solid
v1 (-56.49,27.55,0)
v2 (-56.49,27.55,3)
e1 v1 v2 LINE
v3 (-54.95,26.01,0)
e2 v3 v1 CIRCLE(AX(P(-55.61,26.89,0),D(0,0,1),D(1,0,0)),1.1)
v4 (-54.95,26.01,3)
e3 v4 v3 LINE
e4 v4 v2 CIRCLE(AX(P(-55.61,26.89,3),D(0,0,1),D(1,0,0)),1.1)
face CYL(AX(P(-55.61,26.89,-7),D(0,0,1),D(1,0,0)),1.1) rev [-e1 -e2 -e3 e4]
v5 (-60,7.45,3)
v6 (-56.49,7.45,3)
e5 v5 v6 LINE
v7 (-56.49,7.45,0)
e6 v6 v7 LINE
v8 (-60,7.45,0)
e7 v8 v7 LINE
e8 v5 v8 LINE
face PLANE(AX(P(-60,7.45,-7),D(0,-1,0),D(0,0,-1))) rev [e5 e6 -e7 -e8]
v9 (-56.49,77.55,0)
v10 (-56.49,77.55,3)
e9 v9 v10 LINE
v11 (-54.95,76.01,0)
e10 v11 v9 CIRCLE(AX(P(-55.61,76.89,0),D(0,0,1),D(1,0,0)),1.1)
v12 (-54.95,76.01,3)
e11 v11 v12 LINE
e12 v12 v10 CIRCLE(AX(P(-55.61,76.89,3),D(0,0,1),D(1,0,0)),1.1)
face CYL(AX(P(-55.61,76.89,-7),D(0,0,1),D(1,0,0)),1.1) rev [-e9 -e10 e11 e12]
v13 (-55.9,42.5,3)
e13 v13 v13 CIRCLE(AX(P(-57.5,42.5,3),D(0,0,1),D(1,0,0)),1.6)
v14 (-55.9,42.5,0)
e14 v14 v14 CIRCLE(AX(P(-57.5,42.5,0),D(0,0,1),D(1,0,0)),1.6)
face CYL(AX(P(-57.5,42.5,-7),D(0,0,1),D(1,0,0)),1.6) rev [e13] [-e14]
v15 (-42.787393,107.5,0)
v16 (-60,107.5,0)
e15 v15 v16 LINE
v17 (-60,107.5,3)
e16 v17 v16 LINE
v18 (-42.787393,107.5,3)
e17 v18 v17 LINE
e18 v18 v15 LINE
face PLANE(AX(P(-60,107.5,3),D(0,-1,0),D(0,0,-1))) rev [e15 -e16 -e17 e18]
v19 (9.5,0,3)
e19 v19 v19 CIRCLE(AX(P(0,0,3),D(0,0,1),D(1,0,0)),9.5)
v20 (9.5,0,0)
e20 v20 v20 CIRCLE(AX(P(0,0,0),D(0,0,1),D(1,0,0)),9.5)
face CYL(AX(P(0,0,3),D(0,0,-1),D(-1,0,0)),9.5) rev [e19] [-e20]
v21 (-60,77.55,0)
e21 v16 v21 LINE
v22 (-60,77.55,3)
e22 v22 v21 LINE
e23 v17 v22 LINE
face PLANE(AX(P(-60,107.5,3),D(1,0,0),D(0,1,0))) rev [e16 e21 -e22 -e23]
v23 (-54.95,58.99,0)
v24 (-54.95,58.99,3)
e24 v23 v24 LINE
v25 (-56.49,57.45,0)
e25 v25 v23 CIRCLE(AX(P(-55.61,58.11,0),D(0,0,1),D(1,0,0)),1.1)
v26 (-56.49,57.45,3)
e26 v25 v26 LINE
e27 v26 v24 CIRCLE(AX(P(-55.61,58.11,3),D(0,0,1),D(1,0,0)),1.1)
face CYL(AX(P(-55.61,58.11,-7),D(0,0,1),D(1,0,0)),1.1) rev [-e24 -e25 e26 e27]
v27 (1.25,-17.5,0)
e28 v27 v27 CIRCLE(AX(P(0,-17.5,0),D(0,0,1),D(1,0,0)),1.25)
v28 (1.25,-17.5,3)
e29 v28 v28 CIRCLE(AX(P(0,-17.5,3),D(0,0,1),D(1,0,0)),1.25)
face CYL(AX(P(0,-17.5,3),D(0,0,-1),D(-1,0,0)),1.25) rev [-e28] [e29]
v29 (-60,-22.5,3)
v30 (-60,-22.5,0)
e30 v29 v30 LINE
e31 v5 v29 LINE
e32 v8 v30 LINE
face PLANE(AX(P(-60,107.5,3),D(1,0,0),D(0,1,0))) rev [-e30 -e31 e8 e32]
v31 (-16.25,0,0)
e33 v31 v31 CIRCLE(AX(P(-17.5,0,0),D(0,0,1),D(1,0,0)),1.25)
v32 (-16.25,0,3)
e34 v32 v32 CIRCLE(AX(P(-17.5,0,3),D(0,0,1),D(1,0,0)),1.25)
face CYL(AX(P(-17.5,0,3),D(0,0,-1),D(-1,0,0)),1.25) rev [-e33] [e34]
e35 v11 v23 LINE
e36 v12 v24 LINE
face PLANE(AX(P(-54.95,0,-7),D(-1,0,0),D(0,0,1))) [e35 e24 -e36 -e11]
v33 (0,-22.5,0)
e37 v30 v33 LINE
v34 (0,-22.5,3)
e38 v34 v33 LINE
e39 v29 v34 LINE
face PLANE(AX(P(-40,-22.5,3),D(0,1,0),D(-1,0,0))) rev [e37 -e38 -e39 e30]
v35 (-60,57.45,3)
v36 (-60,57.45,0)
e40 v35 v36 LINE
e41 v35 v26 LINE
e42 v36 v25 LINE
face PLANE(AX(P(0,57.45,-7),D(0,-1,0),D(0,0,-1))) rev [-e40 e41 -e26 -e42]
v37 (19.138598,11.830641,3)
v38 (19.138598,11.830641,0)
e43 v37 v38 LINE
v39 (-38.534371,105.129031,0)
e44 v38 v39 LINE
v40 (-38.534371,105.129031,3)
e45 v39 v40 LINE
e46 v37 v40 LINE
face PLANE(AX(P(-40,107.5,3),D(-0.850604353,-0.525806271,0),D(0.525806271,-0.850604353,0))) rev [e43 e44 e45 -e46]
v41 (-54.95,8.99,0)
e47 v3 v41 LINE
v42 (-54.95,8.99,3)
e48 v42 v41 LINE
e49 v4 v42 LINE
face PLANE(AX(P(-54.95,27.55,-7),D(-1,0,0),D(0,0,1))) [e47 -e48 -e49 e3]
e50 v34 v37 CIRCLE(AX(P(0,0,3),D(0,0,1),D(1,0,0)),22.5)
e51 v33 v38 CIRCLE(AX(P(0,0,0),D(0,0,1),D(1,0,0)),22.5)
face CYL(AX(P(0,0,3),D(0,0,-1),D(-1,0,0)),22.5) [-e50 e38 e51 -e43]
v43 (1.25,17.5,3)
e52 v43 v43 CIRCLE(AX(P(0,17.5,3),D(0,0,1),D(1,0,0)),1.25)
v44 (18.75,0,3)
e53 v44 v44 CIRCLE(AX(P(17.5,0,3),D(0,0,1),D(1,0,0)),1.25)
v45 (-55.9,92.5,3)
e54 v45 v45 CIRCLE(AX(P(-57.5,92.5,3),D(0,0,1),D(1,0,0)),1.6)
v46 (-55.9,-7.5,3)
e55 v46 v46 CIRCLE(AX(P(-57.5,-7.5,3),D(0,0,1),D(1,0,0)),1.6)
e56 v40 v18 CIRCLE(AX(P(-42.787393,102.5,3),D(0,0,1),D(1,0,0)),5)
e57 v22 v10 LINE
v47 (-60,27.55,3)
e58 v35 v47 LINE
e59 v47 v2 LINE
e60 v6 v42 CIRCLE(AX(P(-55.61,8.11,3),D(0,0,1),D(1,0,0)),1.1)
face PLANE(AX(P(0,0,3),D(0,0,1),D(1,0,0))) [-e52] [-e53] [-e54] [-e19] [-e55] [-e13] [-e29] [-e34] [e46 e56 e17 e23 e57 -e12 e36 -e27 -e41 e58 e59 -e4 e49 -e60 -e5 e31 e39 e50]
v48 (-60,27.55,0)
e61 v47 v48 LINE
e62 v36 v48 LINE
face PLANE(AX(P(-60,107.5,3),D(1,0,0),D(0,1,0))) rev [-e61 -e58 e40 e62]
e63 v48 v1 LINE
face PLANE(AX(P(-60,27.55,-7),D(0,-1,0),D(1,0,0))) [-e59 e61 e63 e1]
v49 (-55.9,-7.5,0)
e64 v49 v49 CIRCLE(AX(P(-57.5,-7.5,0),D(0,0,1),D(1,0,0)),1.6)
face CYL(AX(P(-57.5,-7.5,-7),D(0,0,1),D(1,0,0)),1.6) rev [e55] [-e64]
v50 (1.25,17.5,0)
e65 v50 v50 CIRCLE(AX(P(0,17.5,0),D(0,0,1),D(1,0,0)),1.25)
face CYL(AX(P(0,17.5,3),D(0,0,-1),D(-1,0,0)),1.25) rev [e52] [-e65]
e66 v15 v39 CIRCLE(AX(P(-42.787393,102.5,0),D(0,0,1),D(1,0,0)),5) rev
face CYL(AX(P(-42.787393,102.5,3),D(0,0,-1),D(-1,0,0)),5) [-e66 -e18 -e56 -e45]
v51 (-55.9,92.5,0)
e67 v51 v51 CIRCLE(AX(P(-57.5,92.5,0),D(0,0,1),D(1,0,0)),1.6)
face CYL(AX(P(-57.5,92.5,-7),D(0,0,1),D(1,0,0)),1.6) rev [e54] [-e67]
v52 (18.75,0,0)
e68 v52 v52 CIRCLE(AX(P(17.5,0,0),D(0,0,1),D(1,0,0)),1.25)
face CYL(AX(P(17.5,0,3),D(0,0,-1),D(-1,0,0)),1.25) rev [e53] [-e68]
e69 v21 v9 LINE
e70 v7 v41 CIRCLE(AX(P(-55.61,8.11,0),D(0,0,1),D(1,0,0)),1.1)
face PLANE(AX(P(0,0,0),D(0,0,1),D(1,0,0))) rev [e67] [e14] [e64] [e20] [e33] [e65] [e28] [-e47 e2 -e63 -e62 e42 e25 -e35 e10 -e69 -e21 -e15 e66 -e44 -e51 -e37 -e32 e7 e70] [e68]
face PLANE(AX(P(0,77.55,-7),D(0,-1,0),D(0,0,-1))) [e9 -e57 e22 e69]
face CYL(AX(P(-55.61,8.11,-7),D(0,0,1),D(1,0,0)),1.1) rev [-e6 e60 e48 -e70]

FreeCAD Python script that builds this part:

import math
import FreeCAD as App
import Part
import Sketcher
from FreeCAD import Vector


def edges_at(feature, points):
    """Names of the edges that pass closest to the given points."""
    edges = feature.Shape.Edges
    near = lambda p: min(range(len(edges)), key=lambda i: edges[i].distToShape(Part.Vertex(*p))[0])
    return sorted({f"Edge{near(p) + 1}" for p in points})

doc = App.newDocument("Part")
params = doc.addObject("Spreadsheet::Sheet", "Params")
for row, (alias, value) in enumerate([
    ("sketch1_diameter", "19 mm"),
    ("sketch1_diameter2", "2.5 mm"),
    ("sketch1_radius", "22.5 mm"),
    ("sketch1_width", "60 mm"),
    ("sketch1_width2", "20 mm"),
    ("pad1_length", "3 mm"),
    ("fillet_radius", "5 mm"),
    ("sketch2_diameter", "3.2 mm"),
    ("sketch2_radius", "1.1 mm"),
    ("sketch2_height", "20.1 mm"),
    ("sketch2_width", "3.51 mm"),
    ("sketch2_height2", "17.02 mm"),
    ("pocket1_length", "10 mm"),
], start=1):
    params.set(f"A{row}", alias)
    params.set(f"B{row}", "=" + value)
    params.setAlias(f"B{row}", alias)

body = doc.addObject("PartDesign::Body", "Body")

sketch1 = body.newObject("Sketcher::SketchObject", "Sketch")
sketch1.AttachmentSupport = (doc.getObject("XY_Plane"), [""])
sketch1.MapMode = "FlatFace"
sketch1.addGeometry([
    Part.LineSegment(Vector(-60, 107.5, 0), Vector(-60, -22.5, 0)),
    Part.LineSegment(Vector(-60, -22.5, 0), Vector(0, -22.5, 0)),
    Part.ArcOfCircle(Part.Circle(Vector(0, 0, 0), Vector(0, 0, 1), 22.5), math.radians(-90), math.radians(32)),
    Part.LineSegment(Vector(19.1, 11.8, 0), Vector(-40, 107.5, 0)),
    Part.LineSegment(Vector(-40, 107.5, 0), Vector(-60, 107.5, 0)),
    Part.Circle(Vector(0, -17.5, 0), Vector(0, 0, 1), 1.2),
    Part.Circle(Vector(-17.5, 0, 0), Vector(0, 0, 1), 1.2),
    Part.Circle(Vector(0, 0, 0), Vector(0, 0, 1), 9.5),
    Part.Circle(Vector(17.5, 0, 0), Vector(0, 0, 1), 1.2),
    Part.Circle(Vector(0, 17.5, 0), Vector(0, 0, 1), 1.2),
], False)
sketch1.addConstraint([
    Sketcher.Constraint("Coincident", 0, 2, 1, 1),
    Sketcher.Constraint("Tangent", 1, 2, 2, 1),
    Sketcher.Constraint("Tangent", 2, 2, 3, 1),
    Sketcher.Constraint("Coincident", 3, 2, 4, 1),
    Sketcher.Constraint("Coincident", 4, 2, 0, 1),
    Sketcher.Constraint("Vertical", 0),
    Sketcher.Constraint("Horizontal", 1),
    Sketcher.Constraint("Horizontal", 4),
    Sketcher.Constraint("Coincident", 2, 3, -1, 1),
    Sketcher.Constraint("Coincident", 7, 3, -1, 1),
    Sketcher.Constraint("Equal", 5, 6),
    Sketcher.Constraint("Equal", 6, 8),
    Sketcher.Constraint("Equal", 8, 9),
    Sketcher.Constraint("Symmetric", 6, 3, 8, 3, -1, 1),
    Sketcher.Constraint("Symmetric", 5, 3, 9, 3, -1, 1),
    Sketcher.Constraint("PointOnObject", 5, 3, -2),
    Sketcher.Constraint("PointOnObject", 6, 3, -1),
    Sketcher.Constraint("Diameter", 7, 19.0),
    Sketcher.Constraint("Diameter", 5, 2.5),
    Sketcher.Constraint("Radius", 2, 22.5),
    Sketcher.Constraint("DistanceX", 1, 1, 1, 2, 60.0),
    Sketcher.Constraint("DistanceX", 4, 2, 4, 1, 20.0),
    Sketcher.Constraint("DistanceY", 0, 2, 0, 1, 130.0),
    Sketcher.Constraint("DistanceX", 6, 3, 8, 3, 35.0),
    Sketcher.Constraint("DistanceY", 5, 3, 9, 3, 35.0),
])
sketch1.setExpression("Constraints[17]", "Params.sketch1_diameter")
sketch1.setExpression("Constraints[18]", "Params.sketch1_diameter2")
sketch1.setExpression("Constraints[19]", "Params.sketch1_radius")
sketch1.setExpression("Constraints[20]", "Params.sketch1_width")
sketch1.setExpression("Constraints[21]", "Params.sketch1_width2")
pad1 = body.newObject("PartDesign::Pad", "Pad")
pad1.Profile = sketch1
pad1.setExpression("Length", "Params.pad1_length")
doc.recompute()

fillet = body.newObject("PartDesign::Fillet", "Fillet")
fillet.Base = (pad1, edges_at(pad1, [(-40, 107.5, 1.5)]))
fillet.setExpression("Radius", "Params.fillet_radius")

sketch2 = body.newObject("Sketcher::SketchObject", "Sketch001")
sketch2.AttachmentSupport = (doc.getObject("XY_Plane"), [""])
sketch2.MapMode = "FlatFace"
sketch2.AttachmentOffset = App.Placement(Vector(0, 0, 3), App.Rotation())
sketch2.addGeometry([
    Part.Circle(Vector(-57.5, -7.5, 0), Vector(0, 0, 1), 1.6),
    Part.Circle(Vector(-57.5, 42.5, 0), Vector(0, 0, 1), 1.6),
    Part.Circle(Vector(-57.5, 92.5, 0), Vector(0, 0, 1), 1.6),
    Part.ArcOfCircle(Part.Circle(Vector(-55.6, 26.9, 0), Vector(0, 0, 1), 1.1), math.radians(-53), math.radians(143)),
    Part.LineSegment(Vector(-56.5, 27.6, 0), Vector(-60, 27.6, 0)),
    Part.LineSegment(Vector(-60, 27.6, 0), Vector(-60, 7.5, 0)),
    Part.LineSegment(Vector(-60, 7.5, 0), Vector(-56.5, 7.5, 0)),
    Part.ArcOfCircle(Part.Circle(Vector(-55.6, 8.1, 0), Vector(0, 0, 1), 1.1), math.radians(-143), math.radians(53)),
    Part.LineSegment(Vector(-55, 9, 0), Vector(-55, 26, 0)),
    Part.ArcOfCircle(Part.Circle(Vector(-55.6, 58.1, 0), Vector(0, 0, 1), 1.1), math.radians(-143), math.radians(53)),
    Part.LineSegment(Vector(-55, 59, 0), Vector(-55, 76, 0)),
    Part.ArcOfCircle(Part.Circle(Vector(-55.6, 76.9, 0), Vector(0, 0, 1), 1.1), math.radians(-53), math.radians(143)),
    Part.LineSegment(Vector(-56.5, 77.5, 0), Vector(-60, 77.5, 0)),
    Part.LineSegment(Vector(-60, 77.5, 0), Vector(-60, 57.5, 0)),
    Part.LineSegment(Vector(-60, 57.5, 0), Vector(-56.5, 57.5, 0)),
], False)
sketch2.addConstraint([
    Sketcher.Constraint("Coincident", 3, 2, 4, 1),
    Sketcher.Constraint("Coincident", 4, 2, 5, 1),
    Sketcher.Constraint("Coincident", 5, 2, 6, 1),
    Sketcher.Constraint("Coincident", 6, 2, 7, 1),
    Sketcher.Constraint("Coincident", 7, 2, 8, 1),
    Sketcher.Constraint("Coincident", 8, 2, 3, 1),
    Sketcher.Constraint("Coincident", 9, 2, 10, 1),
    Sketcher.Constraint("Coincident", 10, 2, 11, 1),
    Sketcher.Constraint("Coincident", 11, 2, 12, 1),
    Sketcher.Constraint("Coincident", 12, 2, 13, 1),
    Sketcher.Constraint("Coincident", 13, 2, 14, 1),
    Sketcher.Constraint("Coincident", 14, 2, 9, 1),
    Sketcher.Constraint("Horizontal", 4),
    Sketcher.Constraint("Vertical", 5),
    Sketcher.Constraint("Horizontal", 6),
    Sketcher.Constraint("Vertical", 8),
    Sketcher.Constraint("Vertical", 10),
    Sketcher.Constraint("Horizontal", 12),
    Sketcher.Constraint("Vertical", 13),
    Sketcher.Constraint("Horizontal", 14),
    Sketcher.Constraint("Equal", 0, 1),
    Sketcher.Constraint("Equal", 1, 2),
    Sketcher.Constraint("Equal", 3, 7),
    Sketcher.Constraint("Equal", 7, 9),
    Sketcher.Constraint("Equal", 9, 11),
    Sketcher.Constraint("Vertical", 0, 3, 1, 3),
    Sketcher.Constraint("Vertical", 1, 3, 2, 3),
    Sketcher.Constraint("Vertical", 3, 3, 7, 3),
    Sketcher.Constraint("Vertical", 7, 3, 9, 3),
    Sketcher.Constraint("Vertical", 9, 3, 11, 3),
    Sketcher.Constraint("Vertical", 3, 2, 6, 2),
    Sketcher.Constraint("Vertical", 8, 2, 9, 2),
    Sketcher.Constraint("Vertical", 6, 2, 11, 2),
    Sketcher.Constraint("Vertical", 5, 2, 12, 2),
    Sketcher.Constraint("Vertical", 11, 2, 14, 2),
    Sketcher.Constraint("Equal", 8, 10),
    Sketcher.Constraint("Diameter", 0, 3.2),
    Sketcher.Constraint("Radius", 3, 1.1),
    Sketcher.Constraint("DistanceY", 5, 2, 5, 1, 20.1),
    Sketcher.Constraint("DistanceX", 4, 2, -1, 1, 60.0),
    Sketcher.Constraint("DistanceY", 0, 3, 1, 3, 50.0),
    Sketcher.Constraint("DistanceY", 1, 3, 2, 3, 50.0),
    Sketcher.Constraint("DistanceY", 7, 3, 9, 3, 50.0),
    Sketcher.Constraint("DistanceX", 4, 2, 4, 1, 3.51),
    Sketcher.Constraint("DistanceY", 8, 1, 8, 2, 17.02),
    Sketcher.Constraint("DistanceX", 0, 3, -1, 1, 57.5),
    Sketcher.Constraint("DistanceY", 0, 3, -1, 1, 7.5),
    Sketcher.Constraint("DistanceY", 7, 2, 3, 3, 17.9),
    Sketcher.Constraint("DistanceY", -1, 1, 3, 3, 26.89),
])
sketch2.setExpression("Constraints[36]", "Params.sketch2_diameter")
sketch2.setExpression("Constraints[37]", "Params.sketch2_radius")
sketch2.setExpression("Constraints[38]", "Params.sketch2_height")
sketch2.setExpression("Constraints[43]", "Params.sketch2_width")
sketch2.setExpression("Constraints[44]", "Params.sketch2_height2")
pocket1 = body.newObject("PartDesign::Pocket", "Pocket")
pocket1.Profile = sketch2
pocket1.setExpression("Length", "Params.pocket1_length")

doc.recompute()
